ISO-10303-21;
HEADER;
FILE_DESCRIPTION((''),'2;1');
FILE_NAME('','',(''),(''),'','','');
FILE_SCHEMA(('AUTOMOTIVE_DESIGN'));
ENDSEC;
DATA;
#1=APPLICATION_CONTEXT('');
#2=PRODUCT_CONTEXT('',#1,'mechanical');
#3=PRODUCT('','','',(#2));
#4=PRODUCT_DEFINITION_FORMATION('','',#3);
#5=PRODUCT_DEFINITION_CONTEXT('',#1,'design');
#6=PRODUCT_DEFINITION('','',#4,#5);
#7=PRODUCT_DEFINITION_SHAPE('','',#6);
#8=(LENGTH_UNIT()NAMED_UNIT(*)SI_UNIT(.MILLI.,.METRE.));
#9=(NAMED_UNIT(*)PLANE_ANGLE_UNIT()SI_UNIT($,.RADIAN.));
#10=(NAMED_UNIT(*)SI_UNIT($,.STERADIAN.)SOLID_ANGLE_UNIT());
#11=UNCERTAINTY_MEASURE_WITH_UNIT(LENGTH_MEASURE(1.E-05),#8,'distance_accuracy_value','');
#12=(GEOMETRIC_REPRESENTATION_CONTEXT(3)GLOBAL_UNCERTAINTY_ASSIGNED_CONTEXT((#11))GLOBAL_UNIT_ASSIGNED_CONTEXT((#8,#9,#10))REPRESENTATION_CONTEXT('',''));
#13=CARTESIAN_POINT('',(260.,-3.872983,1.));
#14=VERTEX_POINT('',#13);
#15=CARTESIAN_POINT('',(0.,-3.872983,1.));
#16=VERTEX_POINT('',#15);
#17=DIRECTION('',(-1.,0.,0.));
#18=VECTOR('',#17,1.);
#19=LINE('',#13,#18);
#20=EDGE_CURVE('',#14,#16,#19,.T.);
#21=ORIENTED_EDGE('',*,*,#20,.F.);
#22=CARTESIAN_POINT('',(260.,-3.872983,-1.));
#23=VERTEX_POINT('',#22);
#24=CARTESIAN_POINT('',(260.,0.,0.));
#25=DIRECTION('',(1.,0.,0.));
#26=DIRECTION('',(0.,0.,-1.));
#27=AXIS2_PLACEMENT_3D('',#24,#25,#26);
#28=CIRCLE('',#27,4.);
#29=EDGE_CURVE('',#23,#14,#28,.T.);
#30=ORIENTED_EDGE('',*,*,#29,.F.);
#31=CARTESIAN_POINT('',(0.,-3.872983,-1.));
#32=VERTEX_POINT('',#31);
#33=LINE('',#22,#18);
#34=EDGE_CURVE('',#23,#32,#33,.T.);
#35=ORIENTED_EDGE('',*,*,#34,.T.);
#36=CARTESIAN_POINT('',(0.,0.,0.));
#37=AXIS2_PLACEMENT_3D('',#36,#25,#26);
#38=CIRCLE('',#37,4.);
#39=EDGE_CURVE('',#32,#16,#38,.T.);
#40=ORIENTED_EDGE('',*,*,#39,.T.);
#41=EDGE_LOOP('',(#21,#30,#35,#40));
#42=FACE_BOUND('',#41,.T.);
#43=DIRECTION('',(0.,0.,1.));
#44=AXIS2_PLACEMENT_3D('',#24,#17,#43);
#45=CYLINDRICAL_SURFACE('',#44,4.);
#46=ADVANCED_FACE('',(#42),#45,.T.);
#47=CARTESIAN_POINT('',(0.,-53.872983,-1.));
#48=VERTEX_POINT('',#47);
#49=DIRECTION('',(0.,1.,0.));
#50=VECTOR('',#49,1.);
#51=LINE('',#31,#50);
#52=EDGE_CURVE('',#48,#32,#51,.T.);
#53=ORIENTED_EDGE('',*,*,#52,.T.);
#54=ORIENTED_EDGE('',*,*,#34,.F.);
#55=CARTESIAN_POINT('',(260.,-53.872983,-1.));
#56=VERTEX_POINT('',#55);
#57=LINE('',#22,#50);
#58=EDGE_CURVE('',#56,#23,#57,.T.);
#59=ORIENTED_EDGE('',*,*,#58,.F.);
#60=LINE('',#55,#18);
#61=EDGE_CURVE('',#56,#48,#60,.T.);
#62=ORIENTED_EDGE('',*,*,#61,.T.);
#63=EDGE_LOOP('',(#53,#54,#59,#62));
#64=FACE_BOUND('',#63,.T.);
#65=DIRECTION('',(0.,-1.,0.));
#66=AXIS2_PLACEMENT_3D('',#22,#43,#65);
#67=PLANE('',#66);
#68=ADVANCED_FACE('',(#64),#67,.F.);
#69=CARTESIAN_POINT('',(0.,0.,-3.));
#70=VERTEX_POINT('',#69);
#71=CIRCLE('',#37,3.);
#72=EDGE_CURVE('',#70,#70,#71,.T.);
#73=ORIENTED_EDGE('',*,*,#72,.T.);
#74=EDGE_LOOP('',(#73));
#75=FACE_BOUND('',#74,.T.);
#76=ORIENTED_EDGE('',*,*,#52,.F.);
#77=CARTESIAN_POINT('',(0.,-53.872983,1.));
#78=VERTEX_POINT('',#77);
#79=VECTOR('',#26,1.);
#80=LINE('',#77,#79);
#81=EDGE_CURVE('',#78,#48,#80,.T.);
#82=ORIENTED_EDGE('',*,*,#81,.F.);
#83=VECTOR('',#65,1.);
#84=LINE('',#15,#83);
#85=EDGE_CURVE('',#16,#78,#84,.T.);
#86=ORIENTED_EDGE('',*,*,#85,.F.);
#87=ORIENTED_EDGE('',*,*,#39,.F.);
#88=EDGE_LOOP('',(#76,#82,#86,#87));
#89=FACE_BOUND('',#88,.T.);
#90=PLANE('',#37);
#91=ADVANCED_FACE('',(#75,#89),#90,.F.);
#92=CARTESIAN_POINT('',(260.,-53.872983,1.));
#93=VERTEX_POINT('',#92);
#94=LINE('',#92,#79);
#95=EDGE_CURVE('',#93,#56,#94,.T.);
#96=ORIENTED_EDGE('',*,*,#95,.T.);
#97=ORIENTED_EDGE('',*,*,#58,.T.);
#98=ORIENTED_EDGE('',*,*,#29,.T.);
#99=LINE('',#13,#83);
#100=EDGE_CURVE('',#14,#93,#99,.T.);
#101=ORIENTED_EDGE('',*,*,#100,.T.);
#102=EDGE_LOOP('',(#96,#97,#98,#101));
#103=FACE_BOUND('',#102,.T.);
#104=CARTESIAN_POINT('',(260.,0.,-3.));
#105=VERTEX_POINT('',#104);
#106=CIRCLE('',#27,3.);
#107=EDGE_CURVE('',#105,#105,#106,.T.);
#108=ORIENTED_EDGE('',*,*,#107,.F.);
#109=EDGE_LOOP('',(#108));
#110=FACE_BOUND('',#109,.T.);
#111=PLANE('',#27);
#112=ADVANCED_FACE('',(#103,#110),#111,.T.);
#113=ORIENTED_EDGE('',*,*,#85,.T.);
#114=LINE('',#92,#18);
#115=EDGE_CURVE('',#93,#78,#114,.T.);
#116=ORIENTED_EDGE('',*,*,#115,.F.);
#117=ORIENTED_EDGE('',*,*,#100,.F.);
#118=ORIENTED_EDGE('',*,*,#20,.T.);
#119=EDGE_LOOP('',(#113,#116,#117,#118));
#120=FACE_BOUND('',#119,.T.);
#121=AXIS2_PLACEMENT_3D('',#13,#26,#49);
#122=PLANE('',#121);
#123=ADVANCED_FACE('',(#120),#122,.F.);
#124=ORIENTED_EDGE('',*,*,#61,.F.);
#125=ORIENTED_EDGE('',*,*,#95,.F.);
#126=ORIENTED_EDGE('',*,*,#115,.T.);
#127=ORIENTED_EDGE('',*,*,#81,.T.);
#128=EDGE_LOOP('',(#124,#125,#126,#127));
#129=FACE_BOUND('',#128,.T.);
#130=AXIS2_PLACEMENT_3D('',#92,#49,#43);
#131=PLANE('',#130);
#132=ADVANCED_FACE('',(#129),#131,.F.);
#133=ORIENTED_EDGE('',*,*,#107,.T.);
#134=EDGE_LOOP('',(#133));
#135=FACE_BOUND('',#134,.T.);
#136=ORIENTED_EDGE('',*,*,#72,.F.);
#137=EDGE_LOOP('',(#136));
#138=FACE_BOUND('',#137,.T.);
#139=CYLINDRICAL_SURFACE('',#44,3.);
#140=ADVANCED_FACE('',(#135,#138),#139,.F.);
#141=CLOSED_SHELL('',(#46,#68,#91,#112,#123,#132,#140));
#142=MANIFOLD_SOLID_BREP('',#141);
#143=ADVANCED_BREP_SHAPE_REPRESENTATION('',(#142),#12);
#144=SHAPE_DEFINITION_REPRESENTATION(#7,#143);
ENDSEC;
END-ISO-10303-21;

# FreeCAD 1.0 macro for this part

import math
import FreeCAD as App
import Part
import Sketcher
from FreeCAD import Vector
Q = App.Units.Quantity

doc = App.newDocument("Part")
body = doc.addObject("PartDesign::Body", "Body")

# Sketch on YZ plane
sketch1 = body.newObject("Sketcher::SketchObject", "Sketch")
sketch1.AttachmentSupport = (doc.getObject("YZ_Plane"), [""])
sketch1.MapMode = "FlatFace"
sketch1.addGeometry(Part.LineSegment(Vector(-3.872983, 1, 0), Vector(-53.872983, 1, 0)), False)
sketch1.addGeometry(Part.LineSegment(Vector(-53.872983, 1, 0), Vector(-53.872983, -1, 0)), False)
sketch1.addGeometry(Part.LineSegment(Vector(-53.872983, -1, 0), Vector(-3.872983, -1, 0)), False)
sketch1.addGeometry(Part.ArcOfCircle(Part.Circle(Vector(0, 0, 0), Vector(0, 0, 1), 4), math.radians(-165.522488), math.radians(165.522488)), False)
sketch1.addGeometry(Part.Circle(Vector(0, 0, 0), Vector(0, 0, 1), 3), False)
sketch1.addConstraint(Sketcher.Constraint("Coincident", 0, 2, 1, 1))
sketch1.addConstraint(Sketcher.Constraint("Coincident", 1, 2, 2, 1))
sketch1.addConstraint(Sketcher.Constraint("Coincident", 2, 2, 3, 1))
sketch1.addConstraint(Sketcher.Constraint("Coincident", 3, 2, 0, 1))
sketch1.addConstraint(Sketcher.Constraint("Horizontal", 0))
sketch1.addConstraint(Sketcher.Constraint("Vertical", 1))
sketch1.addConstraint(Sketcher.Constraint("Horizontal", 2))
sketch1.addConstraint(Sketcher.Constraint("Coincident", 3, 3, -1, 1))
sketch1.addConstraint(Sketcher.Constraint("Coincident", 4, 3, -1, 1))
sketch1.addConstraint(Sketcher.Constraint("Vertical", 2, 2, 3, 2))
sketch1.addConstraint(Sketcher.Constraint("Diameter", 4, Q("6 mm")))
sketch1.addConstraint(Sketcher.Constraint("Radius", 3, Q("4 mm")))
sketch1.addConstraint(Sketcher.Constraint("DistanceX", 0, 2, 0, 1, Q("50 mm")))
sketch1.addConstraint(Sketcher.Constraint("DistanceY", 1, 2, 1, 1, Q("2 mm")))
pad1 = body.newObject("PartDesign::Pad", "Pad")
pad1.Profile = sketch1
pad1.Length = 260

doc.recompute()
